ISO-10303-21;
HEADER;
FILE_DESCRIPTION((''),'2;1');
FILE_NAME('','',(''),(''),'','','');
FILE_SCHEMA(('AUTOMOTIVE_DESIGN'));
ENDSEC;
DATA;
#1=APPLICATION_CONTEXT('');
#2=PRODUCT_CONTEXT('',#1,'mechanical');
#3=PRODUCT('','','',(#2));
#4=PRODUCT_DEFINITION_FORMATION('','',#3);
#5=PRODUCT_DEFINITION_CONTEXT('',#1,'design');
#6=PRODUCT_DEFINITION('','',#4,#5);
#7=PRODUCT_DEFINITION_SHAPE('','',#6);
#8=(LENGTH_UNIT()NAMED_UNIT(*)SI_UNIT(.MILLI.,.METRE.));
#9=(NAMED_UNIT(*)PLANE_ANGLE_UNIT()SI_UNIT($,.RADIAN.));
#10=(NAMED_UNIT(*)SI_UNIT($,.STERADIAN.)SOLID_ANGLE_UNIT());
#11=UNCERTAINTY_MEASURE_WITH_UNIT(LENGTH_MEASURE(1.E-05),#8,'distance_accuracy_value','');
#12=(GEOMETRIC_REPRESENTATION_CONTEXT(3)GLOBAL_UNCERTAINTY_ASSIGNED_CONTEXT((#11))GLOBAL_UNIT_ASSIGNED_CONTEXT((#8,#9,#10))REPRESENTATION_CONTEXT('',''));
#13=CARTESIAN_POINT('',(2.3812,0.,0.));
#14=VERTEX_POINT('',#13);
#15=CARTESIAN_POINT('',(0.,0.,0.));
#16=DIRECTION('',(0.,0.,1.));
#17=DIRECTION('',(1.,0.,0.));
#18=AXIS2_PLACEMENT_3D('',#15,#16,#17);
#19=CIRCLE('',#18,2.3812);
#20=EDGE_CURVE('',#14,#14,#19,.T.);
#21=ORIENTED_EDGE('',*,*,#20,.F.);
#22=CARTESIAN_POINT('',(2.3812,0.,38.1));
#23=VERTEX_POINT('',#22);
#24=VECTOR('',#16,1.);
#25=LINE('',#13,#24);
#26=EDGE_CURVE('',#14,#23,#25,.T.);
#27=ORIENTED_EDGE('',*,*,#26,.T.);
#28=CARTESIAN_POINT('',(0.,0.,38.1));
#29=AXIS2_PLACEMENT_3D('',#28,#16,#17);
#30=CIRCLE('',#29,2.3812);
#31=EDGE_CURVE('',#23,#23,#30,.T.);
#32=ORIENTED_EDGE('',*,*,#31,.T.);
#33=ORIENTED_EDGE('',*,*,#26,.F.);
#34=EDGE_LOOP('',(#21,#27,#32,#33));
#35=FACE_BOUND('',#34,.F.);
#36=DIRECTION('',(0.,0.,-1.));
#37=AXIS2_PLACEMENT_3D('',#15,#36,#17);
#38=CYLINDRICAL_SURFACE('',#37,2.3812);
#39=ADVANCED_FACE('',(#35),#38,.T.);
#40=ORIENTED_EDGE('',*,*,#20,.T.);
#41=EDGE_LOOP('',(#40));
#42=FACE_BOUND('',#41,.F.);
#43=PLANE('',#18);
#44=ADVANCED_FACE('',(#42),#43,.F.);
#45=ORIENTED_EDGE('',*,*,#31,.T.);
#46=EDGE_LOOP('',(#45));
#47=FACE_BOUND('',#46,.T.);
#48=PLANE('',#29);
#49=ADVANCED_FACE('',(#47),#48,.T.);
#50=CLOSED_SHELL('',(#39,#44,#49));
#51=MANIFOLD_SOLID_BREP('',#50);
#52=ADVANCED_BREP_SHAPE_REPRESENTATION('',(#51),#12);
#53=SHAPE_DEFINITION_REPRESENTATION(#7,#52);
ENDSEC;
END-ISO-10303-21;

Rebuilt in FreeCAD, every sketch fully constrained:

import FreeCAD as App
import Part
import Sketcher
from FreeCAD import Vector
Q = App.Units.Quantity

doc = App.newDocument("Part")
params = doc.addObject("Spreadsheet::Sheet", "Params")
for row, (alias, value) in enumerate([
    ("sketch1_diameter", "0.1875 in"),
    ("pad1_length", "1.5 in"),
], start=1):
    params.set(f"A{row}", alias)
    params.set(f"B{row}", "=" + value)
    params.setAlias(f"B{row}", alias)

body = doc.addObject("PartDesign::Body", "Body")

# Sketch on XY plane
sketch1 = body.newObject("Sketcher::SketchObject", "Sketch")
sketch1.AttachmentSupport = (doc.getObject("XY_Plane"), [""])
sketch1.MapMode = "FlatFace"
sketch1.addGeometry(Part.Circle(Vector(0, 0, 0), Vector(0, 0, 1), 2.4), False)
sketch1.addConstraint([
    Sketcher.Constraint("Coincident", 0, 3, -1, 1),
    Sketcher.Constraint("Diameter", 0, Q("0.1875 in")),
])
sketch1.setExpression("Constraints[1]", "Params.sketch1_diameter")
pad1 = body.newObject("PartDesign::Pad", "Pad")
pad1.Profile = sketch1
pad1.setExpression("Length", "Params.pad1_length")

doc.recompute()
